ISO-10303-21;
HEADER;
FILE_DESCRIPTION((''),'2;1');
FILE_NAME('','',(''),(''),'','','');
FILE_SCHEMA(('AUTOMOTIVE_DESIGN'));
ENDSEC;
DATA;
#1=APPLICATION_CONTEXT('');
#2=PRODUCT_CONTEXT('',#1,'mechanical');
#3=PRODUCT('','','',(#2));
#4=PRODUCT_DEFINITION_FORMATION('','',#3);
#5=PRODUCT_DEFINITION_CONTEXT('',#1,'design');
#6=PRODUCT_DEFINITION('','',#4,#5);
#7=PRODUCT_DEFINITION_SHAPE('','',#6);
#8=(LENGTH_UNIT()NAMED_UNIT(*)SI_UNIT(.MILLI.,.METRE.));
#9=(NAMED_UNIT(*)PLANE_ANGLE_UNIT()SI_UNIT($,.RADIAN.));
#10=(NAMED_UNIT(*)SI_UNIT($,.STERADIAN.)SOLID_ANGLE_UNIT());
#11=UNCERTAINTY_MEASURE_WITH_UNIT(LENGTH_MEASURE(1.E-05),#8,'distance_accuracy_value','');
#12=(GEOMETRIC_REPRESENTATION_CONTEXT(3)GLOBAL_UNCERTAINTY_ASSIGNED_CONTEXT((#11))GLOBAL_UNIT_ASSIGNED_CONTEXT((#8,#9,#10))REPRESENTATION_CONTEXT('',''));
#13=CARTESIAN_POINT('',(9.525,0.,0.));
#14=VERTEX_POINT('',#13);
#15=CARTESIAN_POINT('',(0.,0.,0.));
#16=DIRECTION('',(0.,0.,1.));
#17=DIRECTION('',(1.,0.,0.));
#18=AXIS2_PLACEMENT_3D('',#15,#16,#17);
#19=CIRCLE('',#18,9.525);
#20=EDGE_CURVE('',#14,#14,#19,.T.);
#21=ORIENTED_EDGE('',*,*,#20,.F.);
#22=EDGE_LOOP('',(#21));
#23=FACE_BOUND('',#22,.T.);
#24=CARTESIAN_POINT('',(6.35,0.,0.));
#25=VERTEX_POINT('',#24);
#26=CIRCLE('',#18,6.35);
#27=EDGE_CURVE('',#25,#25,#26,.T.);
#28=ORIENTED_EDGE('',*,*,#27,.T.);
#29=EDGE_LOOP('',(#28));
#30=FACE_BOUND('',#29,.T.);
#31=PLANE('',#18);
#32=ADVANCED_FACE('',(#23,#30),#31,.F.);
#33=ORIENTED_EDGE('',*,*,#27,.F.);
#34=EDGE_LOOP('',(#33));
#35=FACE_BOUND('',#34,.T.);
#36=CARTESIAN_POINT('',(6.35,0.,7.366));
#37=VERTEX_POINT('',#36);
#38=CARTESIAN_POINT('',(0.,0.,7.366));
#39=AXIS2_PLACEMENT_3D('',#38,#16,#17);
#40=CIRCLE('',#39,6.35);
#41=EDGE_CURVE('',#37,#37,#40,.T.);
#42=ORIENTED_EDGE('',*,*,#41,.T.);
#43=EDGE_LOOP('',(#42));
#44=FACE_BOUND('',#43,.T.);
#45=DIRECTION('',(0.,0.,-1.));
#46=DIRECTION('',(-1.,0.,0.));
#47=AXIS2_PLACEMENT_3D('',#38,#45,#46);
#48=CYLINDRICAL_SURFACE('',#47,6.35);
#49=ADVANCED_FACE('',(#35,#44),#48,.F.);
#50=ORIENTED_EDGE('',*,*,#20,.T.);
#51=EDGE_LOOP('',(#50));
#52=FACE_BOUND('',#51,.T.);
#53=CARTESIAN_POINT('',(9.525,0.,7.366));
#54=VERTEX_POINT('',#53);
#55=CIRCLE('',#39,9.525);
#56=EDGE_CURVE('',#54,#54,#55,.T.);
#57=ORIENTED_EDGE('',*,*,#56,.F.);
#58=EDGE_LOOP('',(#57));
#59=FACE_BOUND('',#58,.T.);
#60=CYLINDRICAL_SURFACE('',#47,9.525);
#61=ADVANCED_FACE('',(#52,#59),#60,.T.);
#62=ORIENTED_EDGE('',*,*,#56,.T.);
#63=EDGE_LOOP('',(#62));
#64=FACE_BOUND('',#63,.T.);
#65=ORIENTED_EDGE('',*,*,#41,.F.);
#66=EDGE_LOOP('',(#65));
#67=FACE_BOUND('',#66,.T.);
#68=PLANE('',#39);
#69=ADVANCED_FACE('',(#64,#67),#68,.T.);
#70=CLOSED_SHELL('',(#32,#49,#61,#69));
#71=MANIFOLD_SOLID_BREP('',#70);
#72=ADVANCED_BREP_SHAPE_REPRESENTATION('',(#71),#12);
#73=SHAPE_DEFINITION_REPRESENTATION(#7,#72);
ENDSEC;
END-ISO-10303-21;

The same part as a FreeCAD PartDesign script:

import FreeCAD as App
import Part
import Sketcher
Q = App.Units.Quantity

doc = App.newDocument("Part")
body = doc.addObject("PartDesign::Body", "Body")

# Sketch on XY plane
sketch1 = doc.addObject("Sketcher::SketchObject", "Sketch")
body.addObject(sketch1)
sketch1.AttachmentSupport = (doc.XY_Plane, [""])
sketch1.MapMode = "FlatFace"
sketch1.addGeometry(Part.Circle(App.Vector(0, 0, 0), App.Vector(0, 0, 1), 9.525), False)
sketch1.addGeometry(Part.Circle(App.Vector(0, 0, 0), App.Vector(0, 0, 1), 6.35), False)
sketch1.addConstraint(Sketcher.Constraint("Coincident", 0, 3, -1, 1))
sketch1.addConstraint(Sketcher.Constraint("Coincident", 1, 3, -1, 1))
sketch1.addConstraint(Sketcher.Constraint("Diameter", 1, Q("0.5 in")))
sketch1.addConstraint(Sketcher.Constraint("Diameter", 0, Q("0.75 in")))
pad1 = doc.addObject("PartDesign::Pad", "Pad")
body.addObject(pad1)
pad1.Profile = sketch1
pad1.Length = Q("0.29 in")

doc.recompute()
